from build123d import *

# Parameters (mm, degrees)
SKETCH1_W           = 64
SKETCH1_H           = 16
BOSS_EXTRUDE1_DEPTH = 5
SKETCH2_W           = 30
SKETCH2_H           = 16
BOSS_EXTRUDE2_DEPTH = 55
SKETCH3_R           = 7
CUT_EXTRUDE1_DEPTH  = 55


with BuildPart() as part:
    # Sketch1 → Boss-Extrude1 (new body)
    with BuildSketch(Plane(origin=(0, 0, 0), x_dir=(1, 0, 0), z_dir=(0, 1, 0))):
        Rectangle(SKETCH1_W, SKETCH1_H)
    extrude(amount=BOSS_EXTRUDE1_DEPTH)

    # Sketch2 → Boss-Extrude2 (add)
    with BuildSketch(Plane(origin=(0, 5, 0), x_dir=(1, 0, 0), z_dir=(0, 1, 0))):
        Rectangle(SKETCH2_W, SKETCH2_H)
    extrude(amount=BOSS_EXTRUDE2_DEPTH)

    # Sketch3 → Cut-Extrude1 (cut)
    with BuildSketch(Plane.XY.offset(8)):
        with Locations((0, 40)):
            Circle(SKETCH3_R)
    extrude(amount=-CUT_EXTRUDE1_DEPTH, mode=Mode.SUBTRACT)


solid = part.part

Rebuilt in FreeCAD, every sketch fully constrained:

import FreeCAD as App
import Part
import Sketcher


def add_polygon(sketch, points):
    """Adds a closed chain of lines whose ends are joined by coincident constraints."""
    first, n = sketch.GeometryCount, len(points)
    for a, b in zip(points, points[1:] + points[:1]):
        sketch.addGeometry(Part.LineSegment(App.Vector(*a, 0), App.Vector(*b, 0)), False)
    for i in range(n):
        sketch.addConstraint(Sketcher.Constraint("Coincident", first + i, 2, first + (i + 1) % n, 1))

doc = App.newDocument("Part")
body = doc.addObject("PartDesign::Body", "Body")

sketch1 = body.newObject("Sketcher::SketchObject", "Sketch")
sketch1.AttachmentSupport = (doc.getObject("XZ_Plane"), [""])
sketch1.MapMode = "FlatFace"
add_polygon(sketch1, [(-32, -8), (-32, 8), (32, 8), (32, -8)])
sketch1.addConstraint(Sketcher.Constraint("Vertical", 0))
sketch1.addConstraint(Sketcher.Constraint("Horizontal", 1))
sketch1.addConstraint(Sketcher.Constraint("Vertical", 2))
sketch1.addConstraint(Sketcher.Constraint("Horizontal", 3))
sketch1.addConstraint(Sketcher.Constraint("Symmetric", 0, 2, 2, 2, -1, 1))
sketch1.addConstraint(Sketcher.Constraint("DistanceX", 1, 1, 1, 2, 64.0))
sketch1.addConstraint(Sketcher.Constraint("DistanceY", 0, 1, 0, 2, 16.0))
pad1 = body.newObject("PartDesign::Pad", "Pad")
pad1.Profile = sketch1
pad1.Length = 5
pad1.Reversed = True

sketch2 = body.newObject("Sketcher::SketchObject", "Sketch001")
sketch2.AttachmentSupport = (doc.getObject("XZ_Plane"), [""])
sketch2.MapMode = "FlatFace"
sketch2.AttachmentOffset = App.Placement(App.Vector(0, 0, -5), App.Rotation())
add_polygon(sketch2, [(-15, -8), (-15, 8), (15, 8), (15, -8)])
sketch2.addConstraint(Sketcher.Constraint("Vertical", 0))
sketch2.addConstraint(Sketcher.Constraint("Horizontal", 1))
sketch2.addConstraint(Sketcher.Constraint("Vertical", 2))
sketch2.addConstraint(Sketcher.Constraint("Horizontal", 3))
sketch2.addConstraint(Sketcher.Constraint("Symmetric", 0, 2, 2, 2, -1, 1))
sketch2.addConstraint(Sketcher.Constraint("DistanceX", 1, 1, 1, 2, 30.0))
sketch2.addConstraint(Sketcher.Constraint("DistanceY", 0, 1, 0, 2, 16.0))
pad2 = body.newObject("PartDesign::Pad", "Pad001")
pad2.Profile = sketch2
pad2.Length = 55
pad2.Reversed = True

sketch3 = body.newObject("Sketcher::SketchObject", "Sketch002")
sketch3.AttachmentSupport = (doc.getObject("XY_Plane"), [""])
sketch3.MapMode = "FlatFace"
sketch3.AttachmentOffset = App.Placement(App.Vector(0, 0, 8), App.Rotation())
sketch3.addGeometry(Part.Circle(App.Vector(0, 40, 0), App.Vector(0, 0, 1), 7), False)
sketch3.addConstraint(Sketcher.Constraint("PointOnObject", 0, 3, -2))
sketch3.addConstraint(Sketcher.Constraint("Diameter", 0, 14.0))
sketch3.addConstraint(Sketcher.Constraint("DistanceY", -1, 1, 0, 3, 40.0))
pocket1 = body.newObject("PartDesign::Pocket", "Pocket")
pocket1.Profile = sketch3
pocket1.Length = 55

doc.recompute()
